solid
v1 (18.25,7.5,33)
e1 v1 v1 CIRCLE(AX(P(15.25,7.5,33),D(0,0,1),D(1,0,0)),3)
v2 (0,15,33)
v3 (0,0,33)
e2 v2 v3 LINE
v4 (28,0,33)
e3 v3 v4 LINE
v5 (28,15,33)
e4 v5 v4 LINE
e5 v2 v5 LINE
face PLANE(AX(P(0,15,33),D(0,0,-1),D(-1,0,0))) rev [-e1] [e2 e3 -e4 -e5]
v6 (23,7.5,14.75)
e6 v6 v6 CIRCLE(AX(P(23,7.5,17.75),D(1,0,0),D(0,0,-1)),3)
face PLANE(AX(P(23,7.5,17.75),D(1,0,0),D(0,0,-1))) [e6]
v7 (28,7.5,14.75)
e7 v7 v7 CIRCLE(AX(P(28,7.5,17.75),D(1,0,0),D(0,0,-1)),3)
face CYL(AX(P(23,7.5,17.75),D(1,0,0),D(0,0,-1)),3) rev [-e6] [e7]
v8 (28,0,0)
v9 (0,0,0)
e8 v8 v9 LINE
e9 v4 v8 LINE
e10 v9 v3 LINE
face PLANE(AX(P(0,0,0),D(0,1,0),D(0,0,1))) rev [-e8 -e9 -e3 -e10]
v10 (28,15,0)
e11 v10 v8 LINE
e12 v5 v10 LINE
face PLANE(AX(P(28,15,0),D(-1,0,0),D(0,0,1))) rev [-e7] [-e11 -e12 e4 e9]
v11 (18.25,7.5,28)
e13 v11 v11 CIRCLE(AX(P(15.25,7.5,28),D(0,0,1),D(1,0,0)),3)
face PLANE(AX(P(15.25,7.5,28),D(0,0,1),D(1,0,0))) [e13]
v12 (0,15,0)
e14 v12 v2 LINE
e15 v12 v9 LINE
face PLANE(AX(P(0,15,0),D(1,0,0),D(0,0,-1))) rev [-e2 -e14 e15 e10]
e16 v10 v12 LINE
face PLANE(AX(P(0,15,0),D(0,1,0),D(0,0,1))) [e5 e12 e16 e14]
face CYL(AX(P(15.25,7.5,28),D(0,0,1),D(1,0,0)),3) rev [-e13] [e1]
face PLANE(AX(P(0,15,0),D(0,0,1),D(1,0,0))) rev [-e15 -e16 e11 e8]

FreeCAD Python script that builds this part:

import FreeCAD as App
import Part
import Sketcher
from FreeCAD import Vector
Q = App.Units.Quantity

doc = App.newDocument("Part")
body = doc.addObject("PartDesign::Body", "Body")

# Sketch on XZ plane
sketch1 = body.newObject("Sketcher::SketchObject", "Sketch")
sketch1.AttachmentSupport = (doc.getObject("XZ_Plane"), [""])
sketch1.MapMode = "FlatFace"
sketch1.addGeometry(Part.LineSegment(Vector(0, 0, 0), Vector(0, 33, 0)), False)
sketch1.addGeometry(Part.LineSegment(Vector(0, 33, 0), Vector(28, 33, 0)), False)
sketch1.addGeometry(Part.LineSegment(Vector(28, 33, 0), Vector(28, 0, 0)), False)
sketch1.addGeometry(Part.LineSegment(Vector(28, 0, 0), Vector(0, 0, 0)), False)
sketch1.addConstraint(Sketcher.Constraint("Coincident", 0, 2, 1, 1))
sketch1.addConstraint(Sketcher.Constraint("Coincident", 1, 2, 2, 1))
sketch1.addConstraint(Sketcher.Constraint("Coincident", 2, 2, 3, 1))
sketch1.addConstraint(Sketcher.Constraint("Coincident", 3, 2, 0, 1))
sketch1.addConstraint(Sketcher.Constraint("Vertical", 0))
sketch1.addConstraint(Sketcher.Constraint("Horizontal", 1))
sketch1.addConstraint(Sketcher.Constraint("Vertical", 2))
sketch1.addConstraint(Sketcher.Constraint("Horizontal", 3))
sketch1.addConstraint(Sketcher.Constraint("Coincident", 3, 2, -1, 1))
sketch1.addConstraint(Sketcher.Constraint("DistanceX", 1, 1, 1, 2, Q("28 mm")))
sketch1.addConstraint(Sketcher.Constraint("DistanceY", 0, 1, 0, 2, Q("33 mm")))
pad1 = body.newObject("PartDesign::Pad", "Pad")
pad1.Profile = sketch1
pad1.Length = 15
pad1.Reversed = True

# Sketch on XY plane
sketch2 = body.newObject("Sketcher::SketchObject", "Sketch001")
sketch2.AttachmentSupport = (doc.getObject("XY_Plane"), [""])
sketch2.MapMode = "FlatFace"
sketch2.AttachmentOffset = App.Placement(Vector(0, 0, 33), App.Rotation())
sketch2.addGeometry(Part.Circle(Vector(15.2, 7.5, 0), Vector(0, 0, 1), 3), False)
sketch2.addConstraint(Sketcher.Constraint("Diameter", 0, Q("6 mm")))
sketch2.addConstraint(Sketcher.Constraint("DistanceY", -1, 1, 0, 3, Q("7.5 mm")))
sketch2.addConstraint(Sketcher.Constraint("DistanceX", -1, 1, 0, 3, Q("15.25 mm")))
pocket1 = body.newObject("PartDesign::Pocket", "Pocket")
pocket1.Profile = sketch2
pocket1.Length = 5

# Sketch on YZ plane
sketch3 = body.newObject("Sketcher::SketchObject", "Sketch002")
sketch3.AttachmentSupport = (doc.getObject("YZ_Plane"), [""])
sketch3.MapMode = "FlatFace"
sketch3.AttachmentOffset = App.Placement(Vector(0, 0, 28), App.Rotation())
sketch3.addGeometry(Part.Circle(Vector(7.5, 17.8, 0), Vector(0, 0, 1), 3), False)
sketch3.addConstraint(Sketcher.Constraint("Diameter", 0, Q("6 mm")))
sketch3.addConstraint(Sketcher.Constraint("DistanceX", -1, 1, 0, 3, Q("7.5 mm")))
sketch3.addConstraint(Sketcher.Constraint("DistanceY", -1, 1, 0, 3, Q("17.75 mm")))
pocket2 = body.newObject("PartDesign::Pocket", "Pocket001")
pocket2.Profile = sketch3
pocket2.Length = 5

doc.recompute()
